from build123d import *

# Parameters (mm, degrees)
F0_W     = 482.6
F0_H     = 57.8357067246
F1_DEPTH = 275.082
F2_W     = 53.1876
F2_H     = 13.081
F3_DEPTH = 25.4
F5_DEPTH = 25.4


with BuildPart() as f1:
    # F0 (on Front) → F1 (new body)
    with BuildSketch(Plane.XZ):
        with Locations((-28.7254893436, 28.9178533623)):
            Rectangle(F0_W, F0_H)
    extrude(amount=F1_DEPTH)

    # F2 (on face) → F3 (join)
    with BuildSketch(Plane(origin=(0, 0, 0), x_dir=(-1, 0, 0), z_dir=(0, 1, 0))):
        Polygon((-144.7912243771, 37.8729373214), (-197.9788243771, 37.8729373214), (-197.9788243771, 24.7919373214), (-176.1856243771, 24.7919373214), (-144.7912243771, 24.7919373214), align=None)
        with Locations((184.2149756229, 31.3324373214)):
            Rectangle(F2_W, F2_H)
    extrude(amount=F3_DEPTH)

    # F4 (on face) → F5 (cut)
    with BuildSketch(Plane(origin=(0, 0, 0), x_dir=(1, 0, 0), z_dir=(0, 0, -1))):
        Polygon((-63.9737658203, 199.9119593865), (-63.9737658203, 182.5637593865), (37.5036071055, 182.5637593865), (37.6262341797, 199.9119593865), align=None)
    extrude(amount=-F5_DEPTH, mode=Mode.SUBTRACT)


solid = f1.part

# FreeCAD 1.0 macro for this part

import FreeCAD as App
import Part
import Sketcher
Q = App.Units.Quantity

doc = App.newDocument("Part")
params = doc.addObject("Spreadsheet::Sheet", "Params")
for row, (alias, value) in enumerate([
    ("sketch1_width", "19 in"),
    ("pad1_length", "10.83 in"),
    ("sketch2_width", "2.094 in"),
    ("sketch2_height", "0.515 in"),
    ("pad2_length", "1 in"),
    ("sketch3_width", "4 in"),
    ("sketch3_height", "0.683 in"),
    ("pocket1_length", "1 in"),
], start=1):
    params.set(f"A{row}", alias)
    params.set(f"B{row}", "=" + value)
    params.setAlias(f"B{row}", alias)

body = doc.addObject("PartDesign::Body", "Body")

sketch1 = body.newObject("Sketcher::SketchObject", "Sketch")
sketch1.AttachmentSupport = (doc.getObject("XZ_Plane"), [""])
sketch1.MapMode = "FlatFace"
sketch1.addGeometry([
    Part.LineSegment(App.Vector(-270, 58, 0), App.Vector(-270, 0, 0)),
    Part.LineSegment(App.Vector(-270, 0, 0), App.Vector(213, 0, 0)),
    Part.LineSegment(App.Vector(213, 0, 0), App.Vector(213, 58, 0)),
    Part.LineSegment(App.Vector(213, 58, 0), App.Vector(-270, 58, 0)),
], False)
sketch1.addConstraint([
    Sketcher.Constraint("Coincident", 0, 2, 1, 1),
    Sketcher.Constraint("Coincident", 1, 2, 2, 1),
    Sketcher.Constraint("Coincident", 2, 2, 3, 1),
    Sketcher.Constraint("Coincident", 3, 2, 0, 1),
    Sketcher.Constraint("Vertical", 0),
    Sketcher.Constraint("Horizontal", 1),
    Sketcher.Constraint("Vertical", 2),
    Sketcher.Constraint("Horizontal", 3),
    Sketcher.Constraint("PointOnObject", 0, 2, -1),
    Sketcher.Constraint("DistanceX", 1, 1, 1, 2, Q("19 in")),
    Sketcher.Constraint("DistanceY", 0, 2, 0, 1, Q("57.835707 mm")),
    Sketcher.Constraint("DistanceX", 0, 2, -1, 1, Q("270.025489 mm")),
])
sketch1.setExpression("Constraints[9]", "Params.sketch1_width")
pad1 = body.newObject("PartDesign::Pad", "Pad")
pad1.Profile = sketch1
pad1.setExpression("Length", "Params.pad1_length")

sketch2 = body.newObject("Sketcher::SketchObject", "Sketch001")
sketch2.AttachmentSupport = (doc.getObject("XZ_Plane"), [""])
sketch2.MapMode = "FlatFace"
sketch2.addGeometry([
    Part.LineSegment(App.Vector(145, 38, 0), App.Vector(198, 38, 0)),
    Part.LineSegment(App.Vector(198, 38, 0), App.Vector(198, 25, 0)),
    Part.LineSegment(App.Vector(198, 25, 0), App.Vector(145, 25, 0)),
    Part.LineSegment(App.Vector(145, 25, 0), App.Vector(145, 38, 0)),
    Part.LineSegment(App.Vector(-158, 38, 0), App.Vector(-158, 25, 0)),
    Part.LineSegment(App.Vector(-158, 25, 0), App.Vector(-211, 25, 0)),
    Part.LineSegment(App.Vector(-211, 25, 0), App.Vector(-211, 38, 0)),
    Part.LineSegment(App.Vector(-211, 38, 0), App.Vector(-158, 38, 0)),
], False)
sketch2.addConstraint([
    Sketcher.Constraint("Coincident", 0, 2, 1, 1),
    Sketcher.Constraint("Coincident", 1, 2, 2, 1),
    Sketcher.Constraint("Coincident", 2, 2, 3, 1),
    Sketcher.Constraint("Coincident", 3, 2, 0, 1),
    Sketcher.Constraint("Coincident", 4, 2, 5, 1),
    Sketcher.Constraint("Coincident", 5, 2, 6, 1),
    Sketcher.Constraint("Coincident", 6, 2, 7, 1),
    Sketcher.Constraint("Coincident", 7, 2, 4, 1),
    Sketcher.Constraint("Horizontal", 0),
    Sketcher.Constraint("Vertical", 1),
    Sketcher.Constraint("Horizontal", 2),
    Sketcher.Constraint("Vertical", 3),
    Sketcher.Constraint("Vertical", 4),
    Sketcher.Constraint("Horizontal", 5),
    Sketcher.Constraint("Vertical", 6),
    Sketcher.Constraint("Horizontal", 7),
    Sketcher.Constraint("Horizontal", 2, 2, 4, 2),
    Sketcher.Constraint("Horizontal", 3, 2, 6, 2),
    Sketcher.Constraint("Equal", 2, 5),
    Sketcher.Constraint("DistanceX", 4, 2, 1, 2, Q("14 in")),
    Sketcher.Constraint("DistanceX", 0, 1, 0, 2, Q("2.094 in")),
    Sketcher.Constraint("DistanceY", 1, 2, 1, 1, Q("0.515 in")),
    Sketcher.Constraint("DistanceX", -1, 1, 0, 2, Q("197.978824 mm")),
    Sketcher.Constraint("DistanceY", -1, 1, 0, 2, Q("37.872937 mm")),
])
sketch2.setExpression("Constraints[20]", "Params.sketch2_width")
sketch2.setExpression("Constraints[21]", "Params.sketch2_height")
pad2 = body.newObject("PartDesign::Pad", "Pad001")
pad2.Profile = sketch2
pad2.setExpression("Length", "Params.pad2_length")
pad2.Reversed = True

sketch3 = body.newObject("Sketcher::SketchObject", "Sketch002")
sketch3.AttachmentSupport = (doc.getObject("XY_Plane"), [""])
sketch3.MapMode = "FlatFace"
sketch3.addGeometry([
    Part.LineSegment(App.Vector(-64, -200, 0), App.Vector(-64, -183, 0)),
    Part.LineSegment(App.Vector(-64, -183, 0), App.Vector(38, -183, 0)),
    Part.LineSegment(App.Vector(38, -183, 0), App.Vector(38, -200, 0)),
    Part.LineSegment(App.Vector(38, -200, 0), App.Vector(-64, -200, 0)),
], False)
sketch3.addConstraint([
    Sketcher.Constraint("Coincident", 0, 2, 1, 1),
    Sketcher.Constraint("Coincident", 1, 2, 2, 1),
    Sketcher.Constraint("Coincident", 2, 2, 3, 1),
    Sketcher.Constraint("Coincident", 3, 2, 0, 1),
    Sketcher.Constraint("Vertical", 0),
    Sketcher.Constraint("Horizontal", 1),
    Sketcher.Constraint("Horizontal", 3),
    Sketcher.Constraint("DistanceX", 3, 2, 3, 1, Q("4 in")),
    Sketcher.Constraint("DistanceY", 0, 1, 0, 2, Q("0.683 in")),
    Sketcher.Constraint("DistanceX", 1, 1, 1, 2, Q("101.477373 mm")),
    Sketcher.Constraint("DistanceY", 0, 2, -1, 1, Q("182.563759 mm")),
    Sketcher.Constraint("DistanceX", 0, 2, -1, 1, Q("63.973766 mm")),
])
sketch3.setExpression("Constraints[7]", "Params.sketch3_width")
sketch3.setExpression("Constraints[8]", "Params.sketch3_height")
pocket1 = body.newObject("PartDesign::Pocket", "Pocket")
pocket1.Profile = sketch3
pocket1.setExpression("Length", "Params.pocket1_length")
pocket1.Reversed = True

doc.recompute()
